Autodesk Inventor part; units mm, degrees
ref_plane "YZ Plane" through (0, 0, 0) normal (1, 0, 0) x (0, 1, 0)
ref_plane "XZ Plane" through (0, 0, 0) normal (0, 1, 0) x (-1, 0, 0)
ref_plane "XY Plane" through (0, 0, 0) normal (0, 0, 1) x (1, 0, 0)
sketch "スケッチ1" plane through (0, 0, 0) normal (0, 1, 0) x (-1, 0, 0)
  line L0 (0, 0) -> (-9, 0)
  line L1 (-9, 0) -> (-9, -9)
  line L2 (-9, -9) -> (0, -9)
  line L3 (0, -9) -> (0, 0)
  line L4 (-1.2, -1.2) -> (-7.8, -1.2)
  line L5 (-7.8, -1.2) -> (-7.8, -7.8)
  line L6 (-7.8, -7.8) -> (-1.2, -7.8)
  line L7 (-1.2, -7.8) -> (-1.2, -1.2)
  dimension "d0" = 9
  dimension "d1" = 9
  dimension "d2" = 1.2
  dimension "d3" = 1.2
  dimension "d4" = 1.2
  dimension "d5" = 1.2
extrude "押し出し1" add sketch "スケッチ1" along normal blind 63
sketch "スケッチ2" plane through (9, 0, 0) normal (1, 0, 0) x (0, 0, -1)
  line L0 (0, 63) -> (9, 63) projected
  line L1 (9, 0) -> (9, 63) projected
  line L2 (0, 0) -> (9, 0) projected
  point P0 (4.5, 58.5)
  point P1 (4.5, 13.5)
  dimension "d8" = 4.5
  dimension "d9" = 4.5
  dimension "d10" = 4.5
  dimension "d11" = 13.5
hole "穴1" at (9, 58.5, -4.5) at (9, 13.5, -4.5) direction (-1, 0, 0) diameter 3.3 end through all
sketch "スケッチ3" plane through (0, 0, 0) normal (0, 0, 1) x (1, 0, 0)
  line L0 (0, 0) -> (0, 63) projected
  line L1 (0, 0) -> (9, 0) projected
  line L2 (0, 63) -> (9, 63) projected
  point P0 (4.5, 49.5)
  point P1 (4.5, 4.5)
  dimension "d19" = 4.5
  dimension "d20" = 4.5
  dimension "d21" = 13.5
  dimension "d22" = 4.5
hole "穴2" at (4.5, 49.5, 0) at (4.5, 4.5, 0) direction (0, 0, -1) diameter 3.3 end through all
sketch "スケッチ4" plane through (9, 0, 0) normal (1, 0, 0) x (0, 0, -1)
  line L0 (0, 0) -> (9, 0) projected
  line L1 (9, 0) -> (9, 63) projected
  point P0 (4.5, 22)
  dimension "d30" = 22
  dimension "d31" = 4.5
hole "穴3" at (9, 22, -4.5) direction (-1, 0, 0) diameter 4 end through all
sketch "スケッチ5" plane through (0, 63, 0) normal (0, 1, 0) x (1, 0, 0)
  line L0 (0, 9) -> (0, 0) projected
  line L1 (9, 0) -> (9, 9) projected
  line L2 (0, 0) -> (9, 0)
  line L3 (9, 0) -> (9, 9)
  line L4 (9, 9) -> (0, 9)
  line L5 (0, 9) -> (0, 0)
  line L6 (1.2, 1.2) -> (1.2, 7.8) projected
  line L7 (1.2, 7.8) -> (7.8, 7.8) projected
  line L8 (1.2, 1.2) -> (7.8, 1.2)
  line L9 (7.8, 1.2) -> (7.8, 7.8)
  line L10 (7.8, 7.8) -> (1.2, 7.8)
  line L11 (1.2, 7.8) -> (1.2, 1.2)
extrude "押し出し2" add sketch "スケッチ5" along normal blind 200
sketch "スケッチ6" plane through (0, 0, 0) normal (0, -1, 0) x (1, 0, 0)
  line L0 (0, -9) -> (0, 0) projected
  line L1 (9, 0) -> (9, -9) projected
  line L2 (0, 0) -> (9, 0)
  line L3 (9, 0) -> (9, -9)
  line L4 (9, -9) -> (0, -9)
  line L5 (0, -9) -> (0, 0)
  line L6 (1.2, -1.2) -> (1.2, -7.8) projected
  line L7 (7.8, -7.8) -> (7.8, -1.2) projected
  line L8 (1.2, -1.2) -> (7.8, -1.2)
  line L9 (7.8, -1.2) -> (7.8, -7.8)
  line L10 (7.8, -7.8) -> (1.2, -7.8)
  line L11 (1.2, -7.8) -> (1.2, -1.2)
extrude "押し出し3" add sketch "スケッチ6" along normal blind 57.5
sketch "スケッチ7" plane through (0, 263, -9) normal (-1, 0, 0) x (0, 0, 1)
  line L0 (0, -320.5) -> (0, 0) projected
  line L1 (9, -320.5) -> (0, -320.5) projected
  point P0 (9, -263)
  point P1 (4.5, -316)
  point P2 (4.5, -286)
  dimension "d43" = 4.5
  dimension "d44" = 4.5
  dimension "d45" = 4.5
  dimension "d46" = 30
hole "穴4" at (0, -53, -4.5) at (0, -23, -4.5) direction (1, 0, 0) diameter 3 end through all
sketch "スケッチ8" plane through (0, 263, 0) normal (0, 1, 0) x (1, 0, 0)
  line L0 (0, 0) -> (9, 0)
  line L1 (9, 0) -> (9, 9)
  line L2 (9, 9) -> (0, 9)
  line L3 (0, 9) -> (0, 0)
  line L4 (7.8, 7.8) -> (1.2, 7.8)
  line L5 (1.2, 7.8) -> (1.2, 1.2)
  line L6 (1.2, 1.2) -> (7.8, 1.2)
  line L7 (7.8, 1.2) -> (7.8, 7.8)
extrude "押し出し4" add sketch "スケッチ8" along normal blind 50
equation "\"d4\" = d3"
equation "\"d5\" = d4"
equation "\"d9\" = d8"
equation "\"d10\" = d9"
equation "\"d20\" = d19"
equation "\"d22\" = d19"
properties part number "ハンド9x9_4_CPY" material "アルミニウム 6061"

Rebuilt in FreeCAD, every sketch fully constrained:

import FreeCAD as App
import Part
import Sketcher
from FreeCAD import Vector

doc = App.newDocument("Part")
body = doc.addObject("PartDesign::Body", "Body")

sketch1 = body.newObject("Sketcher::SketchObject", "Sketch")
sketch1.AttachmentSupport = (doc.getObject("XZ_Plane"), [""])
sketch1.MapMode = "FlatFace"
sketch1.addGeometry([
    Part.LineSegment(Vector(0, -9, 0), Vector(0, 0, 0)),
    Part.LineSegment(Vector(0, 0, 0), Vector(9, 0, 0)),
    Part.LineSegment(Vector(9, 0, 0), Vector(9, -9, 0)),
    Part.LineSegment(Vector(9, -9, 0), Vector(0, -9, 0)),
    Part.LineSegment(Vector(7.8, -1.2, 0), Vector(1.2, -1.2, 0)),
    Part.LineSegment(Vector(1.2, -1.2, 0), Vector(1.2, -7.8, 0)),
    Part.LineSegment(Vector(1.2, -7.8, 0), Vector(7.8, -7.8, 0)),
    Part.LineSegment(Vector(7.8, -7.8, 0), Vector(7.8, -1.2, 0)),
], False)
sketch1.addConstraint([
    Sketcher.Constraint("Coincident", 0, 2, 1, 1),
    Sketcher.Constraint("Coincident", 1, 2, 2, 1),
    Sketcher.Constraint("Coincident", 2, 2, 3, 1),
    Sketcher.Constraint("Coincident", 3, 2, 0, 1),
    Sketcher.Constraint("Coincident", 4, 2, 5, 1),
    Sketcher.Constraint("Coincident", 5, 2, 6, 1),
    Sketcher.Constraint("Coincident", 6, 2, 7, 1),
    Sketcher.Constraint("Coincident", 7, 2, 4, 1),
    Sketcher.Constraint("Vertical", 0),
    Sketcher.Constraint("Horizontal", 1),
    Sketcher.Constraint("Vertical", 2),
    Sketcher.Constraint("Horizontal", 3),
    Sketcher.Constraint("Horizontal", 4),
    Sketcher.Constraint("Vertical", 5),
    Sketcher.Constraint("Horizontal", 6),
    Sketcher.Constraint("Vertical", 7),
    Sketcher.Constraint("Coincident", 0, 2, -1, 1),
    Sketcher.Constraint("Equal", 3, 0),
    Sketcher.Constraint("Equal", 6, 5),
    Sketcher.Constraint("DistanceX", 1, 1, 1, 2, 9.0),
    Sketcher.Constraint("DistanceX", -1, 1, 4, 2, 1.2),
    Sketcher.Constraint("DistanceY", 4, 2, -1, 1, 1.2),
    Sketcher.Constraint("DistanceY", 3, 2, 5, 2, 1.2),
])
pad1 = body.newObject("PartDesign::Pad", "Pad")
pad1.Profile = sketch1
pad1.Length = 63
pad1.Reversed = True

sketch2 = body.newObject("Sketcher::SketchObject", "Sketch001")
sketch2.AttachmentSupport = (doc.getObject("YZ_Plane"), [""])
sketch2.MapMode = "FlatFace"
sketch2.AttachmentOffset = App.Placement(Vector(0, 0, 9), App.Rotation())
sketch2.addGeometry([
    Part.Circle(Vector(58.5, -4.5, 0), Vector(0, 0, 1), 1.65),
    Part.Circle(Vector(13.5, -4.5, 0), Vector(0, 0, 1), 1.65),
], False)
sketch2.addConstraint([
    Sketcher.Constraint("Equal", 0, 1),
    Sketcher.Constraint("Horizontal", 0, 3, 1, 3),
    Sketcher.Constraint("Diameter", 0, 3.3),
    Sketcher.Constraint("DistanceX", 1, 3, 0, 3, 45.0),
    Sketcher.Constraint("DistanceX", -1, 1, 0, 3, 58.5),
    Sketcher.Constraint("DistanceY", 0, 3, -1, 1, 4.5),
])
doc.recompute()
hole = body.newObject("PartDesign::Hole", "Hole")
hole.Profile = sketch2
hole.ThreadType = "None"
hole.Diameter = 3.3
hole.DepthType = "ThroughAll"

sketch3 = body.newObject("Sketcher::SketchObject", "Sketch002")
sketch3.AttachmentSupport = (doc.getObject("XY_Plane"), [""])
sketch3.MapMode = "FlatFace"
sketch3.addGeometry([
    Part.Circle(Vector(4.5, 49.5, 0), Vector(0, 0, 1), 1.65),
    Part.Circle(Vector(4.5, 4.5, 0), Vector(0, 0, 1), 1.65),
], False)
sketch3.addConstraint([
    Sketcher.Constraint("Equal", 0, 1),
    Sketcher.Constraint("Vertical", 0, 3, 1, 3),
    Sketcher.Constraint("Diameter", 0, 3.3),
    Sketcher.Constraint("DistanceY", 1, 3, 0, 3, 45.0),
    Sketcher.Constraint("DistanceX", -1, 1, 0, 3, 4.5),
    Sketcher.Constraint("DistanceY", -1, 1, 0, 3, 49.5),
])
doc.recompute()
hole2 = body.newObject("PartDesign::Hole", "Hole001")
hole2.Profile = sketch3
hole2.ThreadType = "None"
hole2.Diameter = 3.3
hole2.DepthType = "ThroughAll"

sketch4 = body.newObject("Sketcher::SketchObject", "Sketch003")
sketch4.AttachmentSupport = (doc.getObject("YZ_Plane"), [""])
sketch4.MapMode = "FlatFace"
sketch4.AttachmentOffset = App.Placement(Vector(0, 0, 9), App.Rotation())
sketch4.addGeometry(Part.Circle(Vector(22, -4.5, 0), Vector(0, 0, 1), 2), False)
sketch4.addConstraint([
    Sketcher.Constraint("Diameter", 0, 4.0),
    Sketcher.Constraint("DistanceX", -1, 1, 0, 3, 22.0),
    Sketcher.Constraint("DistanceY", 0, 3, -1, 1, 4.5),
])
doc.recompute()
hole3 = body.newObject("PartDesign::Hole", "Hole002")
hole3.Profile = sketch4
hole3.ThreadType = "None"
hole3.Diameter = 4
hole3.DepthType = "ThroughAll"

sketch5 = body.newObject("Sketcher::SketchObject", "Sketch004")
sketch5.AttachmentSupport = (doc.getObject("XZ_Plane"), [""])
sketch5.MapMode = "FlatFace"
sketch5.AttachmentOffset = App.Placement(Vector(0, 0, -63), App.Rotation())
sketch5.addGeometry([
    Part.LineSegment(Vector(9, -9, 0), Vector(0, -9, 0)),
    Part.LineSegment(Vector(0, -9, 0), Vector(0, 0, 0)),
    Part.LineSegment(Vector(0, 0, 0), Vector(9, 0, 0)),
    Part.LineSegment(Vector(9, 0, 0), Vector(9, -9, 0)),
    Part.LineSegment(Vector(7.8, -1.2, 0), Vector(1.2, -1.2, 0)),
    Part.LineSegment(Vector(1.2, -1.2, 0), Vector(1.2, -7.8, 0)),
    Part.LineSegment(Vector(1.2, -7.8, 0), Vector(7.8, -7.8, 0)),
    Part.LineSegment(Vector(7.8, -7.8, 0), Vector(7.8, -1.2, 0)),
], False)
sketch5.addConstraint([
    Sketcher.Constraint("Coincident", 0, 2, 1, 1),
    Sketcher.Constraint("Coincident", 1, 2, 2, 1),
    Sketcher.Constraint("Coincident", 2, 2, 3, 1),
    Sketcher.Constraint("Coincident", 3, 2, 0, 1),
    Sketcher.Constraint("Coincident", 4, 2, 5, 1),
    Sketcher.Constraint("Coincident", 5, 2, 6, 1),
    Sketcher.Constraint("Coincident", 6, 2, 7, 1),
    Sketcher.Constraint("Coincident", 7, 2, 4, 1),
    Sketcher.Constraint("Horizontal", 0),
    Sketcher.Constraint("Vertical", 1),
    Sketcher.Constraint("Horizontal", 2),
    Sketcher.Constraint("Vertical", 3),
    Sketcher.Constraint("Horizontal", 4),
    Sketcher.Constraint("Vertical", 5),
    Sketcher.Constraint("Horizontal", 6),
    Sketcher.Constraint("Vertical", 7),
    Sketcher.Constraint("Coincident", 1, 2, -1, 1),
    Sketcher.Constraint("Equal", 2, 1),
    Sketcher.Constraint("Equal", 6, 5),
    Sketcher.Constraint("DistanceX", 0, 2, 0, 1, 9.0),
    Sketcher.Constraint("DistanceX", 4, 2, 4, 1, 6.6),
    Sketcher.Constraint("DistanceX", -1, 1, 4, 2, 1.2),
    Sketcher.Constraint("DistanceY", 4, 2, -1, 1, 1.2),
])
pad2 = body.newObject("PartDesign::Pad", "Pad001")
pad2.Profile = sketch5
pad2.Length = 200
pad2.Reversed = True

sketch6 = body.newObject("Sketcher::SketchObject", "Sketch005")
sketch6.AttachmentSupport = (doc.getObject("XZ_Plane"), [""])
sketch6.MapMode = "FlatFace"
sketch6.addGeometry([
    Part.LineSegment(Vector(0, 0, 0), Vector(0, -9, 0)),
    Part.LineSegment(Vector(0, -9, 0), Vector(9, -9, 0)),
    Part.LineSegment(Vector(9, -9, 0), Vector(9, 0, 0)),
    Part.LineSegment(Vector(9, 0, 0), Vector(0, 0, 0)),
    Part.LineSegment(Vector(1.2, -7.8, 0), Vector(1.2, -1.2, 0)),
    Part.LineSegment(Vector(1.2, -1.2, 0), Vector(7.8, -1.2, 0)),
    Part.LineSegment(Vector(7.8, -1.2, 0), Vector(7.8, -7.8, 0)),
    Part.LineSegment(Vector(7.8, -7.8, 0), Vector(1.2, -7.8, 0)),
], False)
sketch6.addConstraint([
    Sketcher.Constraint("Coincident", 0, 2, 1, 1),
    Sketcher.Constraint("Coincident", 1, 2, 2, 1),
    Sketcher.Constraint("Coincident", 2, 2, 3, 1),
    Sketcher.Constraint("Coincident", 3, 2, 0, 1),
    Sketcher.Constraint("Coincident", 4, 2, 5, 1),
    Sketcher.Constraint("Coincident", 5, 2, 6, 1),
    Sketcher.Constraint("Coincident", 6, 2, 7, 1),
    Sketcher.Constraint("Coincident", 7, 2, 4, 1),
    Sketcher.Constraint("Vertical", 0),
    Sketcher.Constraint("Horizontal", 1),
    Sketcher.Constraint("Vertical", 2),
    Sketcher.Constraint("Horizontal", 3),
    Sketcher.Constraint("Vertical", 4),
    Sketcher.Constraint("Horizontal", 5),
    Sketcher.Constraint("Vertical", 6),
    Sketcher.Constraint("Horizontal", 7),
    Sketcher.Constraint("Coincident", 3, 2, -1, 1),
    Sketcher.Constraint("Equal", 3, 0),
    Sketcher.Constraint("Equal", 7, 4),
    Sketcher.Constraint("DistanceX", 1, 1, 1, 2, 9.0),
    Sketcher.Constraint("DistanceX", 5, 1, 5, 2, 6.6),
    Sketcher.Constraint("DistanceX", -1, 1, 4, 2, 1.2),
    Sketcher.Constraint("DistanceY", 4, 2, -1, 1, 1.2),
])
pad3 = body.newObject("PartDesign::Pad", "Pad002")
pad3.Profile = sketch6
pad3.Length = 57.5

sketch7 = body.newObject("Sketcher::SketchObject", "Sketch006")
sketch7.AttachmentSupport = (doc.getObject("YZ_Plane"), [""])
sketch7.MapMode = "FlatFace"
sketch7.addGeometry([
    Part.Circle(Vector(-53, -4.5, 0), Vector(0, 0, 1), 1.5),
    Part.Circle(Vector(-23, -4.5, 0), Vector(0, 0, 1), 1.5),
], False)
sketch7.addConstraint([
    Sketcher.Constraint("Equal", 0, 1),
    Sketcher.Constraint("Horizontal", 0, 3, 1, 3),
    Sketcher.Constraint("Diameter", 0, 3.0),
    Sketcher.Constraint("DistanceX", 0, 3, -1, 1, 53.0),
    Sketcher.Constraint("DistanceX", 1, 3, -1, 1, 23.0),
    Sketcher.Constraint("DistanceY", 0, 3, -1, 1, 4.5),
])
doc.recompute()
hole4 = body.newObject("PartDesign::Hole", "Hole003")
hole4.Profile = sketch7
hole4.ThreadType = "None"
hole4.Diameter = 3
hole4.DepthType = "ThroughAll"
hole4.Reversed = True

sketch8 = body.newObject("Sketcher::SketchObject", "Sketch007")
sketch8.AttachmentSupport = (doc.getObject("XZ_Plane"), [""])
sketch8.MapMode = "FlatFace"
sketch8.AttachmentOffset = App.Placement(Vector(0, 0, -263), App.Rotation())
sketch8.addGeometry([
    Part.LineSegment(Vector(0, -9, 0), Vector(0, 0, 0)),
    Part.LineSegment(Vector(0, 0, 0), Vector(9, 0, 0)),
    Part.LineSegment(Vector(9, 0, 0), Vector(9, -9, 0)),
    Part.LineSegment(Vector(9, -9, 0), Vector(0, -9, 0)),
    Part.LineSegment(Vector(1.2, -7.8, 0), Vector(7.8, -7.8, 0)),
    Part.LineSegment(Vector(7.8, -7.8, 0), Vector(7.8, -1.2, 0)),
    Part.LineSegment(Vector(7.8, -1.2, 0), Vector(1.2, -1.2, 0)),
    Part.LineSegment(Vector(1.2, -1.2, 0), Vector(1.2, -7.8, 0)),
], False)
sketch8.addConstraint([
    Sketcher.Constraint("Coincident", 0, 2, 1, 1),
    Sketcher.Constraint("Coincident", 1, 2, 2, 1),
    Sketcher.Constraint("Coincident", 2, 2, 3, 1),
    Sketcher.Constraint("Coincident", 3, 2, 0, 1),
    Sketcher.Constraint("Coincident", 4, 2, 5, 1),
    Sketcher.Constraint("Coincident", 5, 2, 6, 1),
    Sketcher.Constraint("Coincident", 6, 2, 7, 1),
    Sketcher.Constraint("Coincident", 7, 2, 4, 1),
    Sketcher.Constraint("Vertical", 0),
    Sketcher.Constraint("Horizontal", 1),
    Sketcher.Constraint("Vertical", 2),
    Sketcher.Constraint("Horizontal", 3),
    Sketcher.Constraint("Horizontal", 4),
    Sketcher.Constraint("Vertical", 5),
    Sketcher.Constraint("Horizontal", 6),
    Sketcher.Constraint("Vertical", 7),
    Sketcher.Constraint("Coincident", 0, 2, -1, 1),
    Sketcher.Constraint("Equal", 3, 0),
    Sketcher.Constraint("Equal", 6, 5),
    Sketcher.Constraint("DistanceX", 1, 1, 1, 2, 9.0),
    Sketcher.Constraint("DistanceX", 4, 1, 4, 2, 6.6),
    Sketcher.Constraint("DistanceX", -1, 1, 4, 2, 7.8),
    Sketcher.Constraint("DistanceY", 4, 2, -1, 1, 7.8),
])
pad4 = body.newObject("PartDesign::Pad", "Pad003")
pad4.Profile = sketch8
pad4.Length = 50
pad4.Reversed = True

doc.recompute()
